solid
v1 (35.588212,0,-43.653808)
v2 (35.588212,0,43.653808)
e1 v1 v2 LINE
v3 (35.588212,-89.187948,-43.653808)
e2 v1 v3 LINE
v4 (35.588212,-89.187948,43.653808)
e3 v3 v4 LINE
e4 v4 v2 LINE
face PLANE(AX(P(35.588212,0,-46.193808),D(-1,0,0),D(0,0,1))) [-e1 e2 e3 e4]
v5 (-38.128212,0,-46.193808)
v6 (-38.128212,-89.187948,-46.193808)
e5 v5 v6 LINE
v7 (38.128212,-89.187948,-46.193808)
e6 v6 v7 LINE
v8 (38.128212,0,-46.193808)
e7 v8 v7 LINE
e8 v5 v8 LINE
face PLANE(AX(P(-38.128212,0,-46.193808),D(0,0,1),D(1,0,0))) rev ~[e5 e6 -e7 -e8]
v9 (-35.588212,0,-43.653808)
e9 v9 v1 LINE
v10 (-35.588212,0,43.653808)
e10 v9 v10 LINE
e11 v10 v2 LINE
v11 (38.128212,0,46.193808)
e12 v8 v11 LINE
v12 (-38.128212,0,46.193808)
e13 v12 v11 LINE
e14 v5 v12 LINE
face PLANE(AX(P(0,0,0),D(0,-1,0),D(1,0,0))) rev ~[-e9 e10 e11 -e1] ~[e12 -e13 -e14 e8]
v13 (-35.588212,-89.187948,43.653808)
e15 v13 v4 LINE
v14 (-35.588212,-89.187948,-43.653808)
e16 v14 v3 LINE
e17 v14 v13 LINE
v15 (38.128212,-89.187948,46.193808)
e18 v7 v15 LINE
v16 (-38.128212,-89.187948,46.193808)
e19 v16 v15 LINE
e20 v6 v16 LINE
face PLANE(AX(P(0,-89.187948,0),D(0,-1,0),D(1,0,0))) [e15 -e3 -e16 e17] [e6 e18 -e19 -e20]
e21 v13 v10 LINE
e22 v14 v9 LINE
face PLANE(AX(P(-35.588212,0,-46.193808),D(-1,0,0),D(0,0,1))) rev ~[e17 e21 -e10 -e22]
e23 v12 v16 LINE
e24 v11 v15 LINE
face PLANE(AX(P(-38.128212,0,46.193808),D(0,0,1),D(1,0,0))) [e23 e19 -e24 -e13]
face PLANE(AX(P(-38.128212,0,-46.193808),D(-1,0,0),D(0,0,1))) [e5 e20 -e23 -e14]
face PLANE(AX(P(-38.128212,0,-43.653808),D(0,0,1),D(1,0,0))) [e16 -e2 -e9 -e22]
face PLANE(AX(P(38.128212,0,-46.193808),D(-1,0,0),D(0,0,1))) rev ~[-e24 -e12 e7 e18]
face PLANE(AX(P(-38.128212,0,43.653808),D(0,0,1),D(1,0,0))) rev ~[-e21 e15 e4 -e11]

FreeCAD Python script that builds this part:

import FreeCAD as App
import Part
import Sketcher

V = App.Vector
Q = App.Units.Quantity


def faces_at(feature, points):
    """Names of the faces that lie closest to the given points."""
    faces = feature.Shape.Faces
    near = lambda p: min(range(len(faces)), key=lambda i: faces[i].distToShape(Part.Vertex(*p))[0])
    return sorted({f"Face{near(p) + 1}" for p in points})


def add_polygon(sketch, points):
    """Adds a closed chain of lines whose ends are joined by coincident constraints."""
    first, n = sketch.GeometryCount, len(points)
    for a, b in zip(points, points[1:] + points[:1]):
        sketch.addGeometry(Part.LineSegment(App.Vector(*a, 0), App.Vector(*b, 0)), False)
    for i in range(n):
        sketch.addConstraint(Sketcher.Constraint("Coincident", first + i, 2, first + (i + 1) % n, 1))

doc = App.newDocument("Part")
body = doc.addObject("PartDesign::Body", "Body")

sketch1 = doc.addObject("Sketcher::SketchObject", "Sketch")
body.addObject(sketch1)
sketch1.AttachmentSupport = (doc.XZ_Plane, [""])
sketch1.MapMode = "FlatFace"
add_polygon(sketch1, [(-38, 46), (-38, -46), (38, -46), (38, 46)])
sketch1.addConstraint(Sketcher.Constraint("Vertical", 0))
sketch1.addConstraint(Sketcher.Constraint("Horizontal", 1))
sketch1.addConstraint(Sketcher.Constraint("Vertical", 2))
sketch1.addConstraint(Sketcher.Constraint("Horizontal", 3))
sketch1.addConstraint(Sketcher.Constraint("Symmetric", 0, 2, 2, 2, -1, 1))
sketch1.addConstraint(Sketcher.Constraint("DistanceX", 1, 1, 1, 2, 76.256424))
sketch1.addConstraint(Sketcher.Constraint("DistanceY", 0, 2, 0, 1, 92.387616))
pad1 = doc.addObject("PartDesign::Pad", "Pad")
body.addObject(pad1)
pad1.Profile = sketch1
pad1.Length = 89.187948
doc.recompute()

thickness = doc.addObject("PartDesign::Thickness", "Thickness")
body.addObject(thickness)
thickness.Base = (pad1, faces_at(pad1, [(0, -89.188, 0), (0, 0, 0)]))
thickness.Value = Q("0.1 in")
thickness.Reversed = True
thickness.Join = "Arc"

doc.recompute()
